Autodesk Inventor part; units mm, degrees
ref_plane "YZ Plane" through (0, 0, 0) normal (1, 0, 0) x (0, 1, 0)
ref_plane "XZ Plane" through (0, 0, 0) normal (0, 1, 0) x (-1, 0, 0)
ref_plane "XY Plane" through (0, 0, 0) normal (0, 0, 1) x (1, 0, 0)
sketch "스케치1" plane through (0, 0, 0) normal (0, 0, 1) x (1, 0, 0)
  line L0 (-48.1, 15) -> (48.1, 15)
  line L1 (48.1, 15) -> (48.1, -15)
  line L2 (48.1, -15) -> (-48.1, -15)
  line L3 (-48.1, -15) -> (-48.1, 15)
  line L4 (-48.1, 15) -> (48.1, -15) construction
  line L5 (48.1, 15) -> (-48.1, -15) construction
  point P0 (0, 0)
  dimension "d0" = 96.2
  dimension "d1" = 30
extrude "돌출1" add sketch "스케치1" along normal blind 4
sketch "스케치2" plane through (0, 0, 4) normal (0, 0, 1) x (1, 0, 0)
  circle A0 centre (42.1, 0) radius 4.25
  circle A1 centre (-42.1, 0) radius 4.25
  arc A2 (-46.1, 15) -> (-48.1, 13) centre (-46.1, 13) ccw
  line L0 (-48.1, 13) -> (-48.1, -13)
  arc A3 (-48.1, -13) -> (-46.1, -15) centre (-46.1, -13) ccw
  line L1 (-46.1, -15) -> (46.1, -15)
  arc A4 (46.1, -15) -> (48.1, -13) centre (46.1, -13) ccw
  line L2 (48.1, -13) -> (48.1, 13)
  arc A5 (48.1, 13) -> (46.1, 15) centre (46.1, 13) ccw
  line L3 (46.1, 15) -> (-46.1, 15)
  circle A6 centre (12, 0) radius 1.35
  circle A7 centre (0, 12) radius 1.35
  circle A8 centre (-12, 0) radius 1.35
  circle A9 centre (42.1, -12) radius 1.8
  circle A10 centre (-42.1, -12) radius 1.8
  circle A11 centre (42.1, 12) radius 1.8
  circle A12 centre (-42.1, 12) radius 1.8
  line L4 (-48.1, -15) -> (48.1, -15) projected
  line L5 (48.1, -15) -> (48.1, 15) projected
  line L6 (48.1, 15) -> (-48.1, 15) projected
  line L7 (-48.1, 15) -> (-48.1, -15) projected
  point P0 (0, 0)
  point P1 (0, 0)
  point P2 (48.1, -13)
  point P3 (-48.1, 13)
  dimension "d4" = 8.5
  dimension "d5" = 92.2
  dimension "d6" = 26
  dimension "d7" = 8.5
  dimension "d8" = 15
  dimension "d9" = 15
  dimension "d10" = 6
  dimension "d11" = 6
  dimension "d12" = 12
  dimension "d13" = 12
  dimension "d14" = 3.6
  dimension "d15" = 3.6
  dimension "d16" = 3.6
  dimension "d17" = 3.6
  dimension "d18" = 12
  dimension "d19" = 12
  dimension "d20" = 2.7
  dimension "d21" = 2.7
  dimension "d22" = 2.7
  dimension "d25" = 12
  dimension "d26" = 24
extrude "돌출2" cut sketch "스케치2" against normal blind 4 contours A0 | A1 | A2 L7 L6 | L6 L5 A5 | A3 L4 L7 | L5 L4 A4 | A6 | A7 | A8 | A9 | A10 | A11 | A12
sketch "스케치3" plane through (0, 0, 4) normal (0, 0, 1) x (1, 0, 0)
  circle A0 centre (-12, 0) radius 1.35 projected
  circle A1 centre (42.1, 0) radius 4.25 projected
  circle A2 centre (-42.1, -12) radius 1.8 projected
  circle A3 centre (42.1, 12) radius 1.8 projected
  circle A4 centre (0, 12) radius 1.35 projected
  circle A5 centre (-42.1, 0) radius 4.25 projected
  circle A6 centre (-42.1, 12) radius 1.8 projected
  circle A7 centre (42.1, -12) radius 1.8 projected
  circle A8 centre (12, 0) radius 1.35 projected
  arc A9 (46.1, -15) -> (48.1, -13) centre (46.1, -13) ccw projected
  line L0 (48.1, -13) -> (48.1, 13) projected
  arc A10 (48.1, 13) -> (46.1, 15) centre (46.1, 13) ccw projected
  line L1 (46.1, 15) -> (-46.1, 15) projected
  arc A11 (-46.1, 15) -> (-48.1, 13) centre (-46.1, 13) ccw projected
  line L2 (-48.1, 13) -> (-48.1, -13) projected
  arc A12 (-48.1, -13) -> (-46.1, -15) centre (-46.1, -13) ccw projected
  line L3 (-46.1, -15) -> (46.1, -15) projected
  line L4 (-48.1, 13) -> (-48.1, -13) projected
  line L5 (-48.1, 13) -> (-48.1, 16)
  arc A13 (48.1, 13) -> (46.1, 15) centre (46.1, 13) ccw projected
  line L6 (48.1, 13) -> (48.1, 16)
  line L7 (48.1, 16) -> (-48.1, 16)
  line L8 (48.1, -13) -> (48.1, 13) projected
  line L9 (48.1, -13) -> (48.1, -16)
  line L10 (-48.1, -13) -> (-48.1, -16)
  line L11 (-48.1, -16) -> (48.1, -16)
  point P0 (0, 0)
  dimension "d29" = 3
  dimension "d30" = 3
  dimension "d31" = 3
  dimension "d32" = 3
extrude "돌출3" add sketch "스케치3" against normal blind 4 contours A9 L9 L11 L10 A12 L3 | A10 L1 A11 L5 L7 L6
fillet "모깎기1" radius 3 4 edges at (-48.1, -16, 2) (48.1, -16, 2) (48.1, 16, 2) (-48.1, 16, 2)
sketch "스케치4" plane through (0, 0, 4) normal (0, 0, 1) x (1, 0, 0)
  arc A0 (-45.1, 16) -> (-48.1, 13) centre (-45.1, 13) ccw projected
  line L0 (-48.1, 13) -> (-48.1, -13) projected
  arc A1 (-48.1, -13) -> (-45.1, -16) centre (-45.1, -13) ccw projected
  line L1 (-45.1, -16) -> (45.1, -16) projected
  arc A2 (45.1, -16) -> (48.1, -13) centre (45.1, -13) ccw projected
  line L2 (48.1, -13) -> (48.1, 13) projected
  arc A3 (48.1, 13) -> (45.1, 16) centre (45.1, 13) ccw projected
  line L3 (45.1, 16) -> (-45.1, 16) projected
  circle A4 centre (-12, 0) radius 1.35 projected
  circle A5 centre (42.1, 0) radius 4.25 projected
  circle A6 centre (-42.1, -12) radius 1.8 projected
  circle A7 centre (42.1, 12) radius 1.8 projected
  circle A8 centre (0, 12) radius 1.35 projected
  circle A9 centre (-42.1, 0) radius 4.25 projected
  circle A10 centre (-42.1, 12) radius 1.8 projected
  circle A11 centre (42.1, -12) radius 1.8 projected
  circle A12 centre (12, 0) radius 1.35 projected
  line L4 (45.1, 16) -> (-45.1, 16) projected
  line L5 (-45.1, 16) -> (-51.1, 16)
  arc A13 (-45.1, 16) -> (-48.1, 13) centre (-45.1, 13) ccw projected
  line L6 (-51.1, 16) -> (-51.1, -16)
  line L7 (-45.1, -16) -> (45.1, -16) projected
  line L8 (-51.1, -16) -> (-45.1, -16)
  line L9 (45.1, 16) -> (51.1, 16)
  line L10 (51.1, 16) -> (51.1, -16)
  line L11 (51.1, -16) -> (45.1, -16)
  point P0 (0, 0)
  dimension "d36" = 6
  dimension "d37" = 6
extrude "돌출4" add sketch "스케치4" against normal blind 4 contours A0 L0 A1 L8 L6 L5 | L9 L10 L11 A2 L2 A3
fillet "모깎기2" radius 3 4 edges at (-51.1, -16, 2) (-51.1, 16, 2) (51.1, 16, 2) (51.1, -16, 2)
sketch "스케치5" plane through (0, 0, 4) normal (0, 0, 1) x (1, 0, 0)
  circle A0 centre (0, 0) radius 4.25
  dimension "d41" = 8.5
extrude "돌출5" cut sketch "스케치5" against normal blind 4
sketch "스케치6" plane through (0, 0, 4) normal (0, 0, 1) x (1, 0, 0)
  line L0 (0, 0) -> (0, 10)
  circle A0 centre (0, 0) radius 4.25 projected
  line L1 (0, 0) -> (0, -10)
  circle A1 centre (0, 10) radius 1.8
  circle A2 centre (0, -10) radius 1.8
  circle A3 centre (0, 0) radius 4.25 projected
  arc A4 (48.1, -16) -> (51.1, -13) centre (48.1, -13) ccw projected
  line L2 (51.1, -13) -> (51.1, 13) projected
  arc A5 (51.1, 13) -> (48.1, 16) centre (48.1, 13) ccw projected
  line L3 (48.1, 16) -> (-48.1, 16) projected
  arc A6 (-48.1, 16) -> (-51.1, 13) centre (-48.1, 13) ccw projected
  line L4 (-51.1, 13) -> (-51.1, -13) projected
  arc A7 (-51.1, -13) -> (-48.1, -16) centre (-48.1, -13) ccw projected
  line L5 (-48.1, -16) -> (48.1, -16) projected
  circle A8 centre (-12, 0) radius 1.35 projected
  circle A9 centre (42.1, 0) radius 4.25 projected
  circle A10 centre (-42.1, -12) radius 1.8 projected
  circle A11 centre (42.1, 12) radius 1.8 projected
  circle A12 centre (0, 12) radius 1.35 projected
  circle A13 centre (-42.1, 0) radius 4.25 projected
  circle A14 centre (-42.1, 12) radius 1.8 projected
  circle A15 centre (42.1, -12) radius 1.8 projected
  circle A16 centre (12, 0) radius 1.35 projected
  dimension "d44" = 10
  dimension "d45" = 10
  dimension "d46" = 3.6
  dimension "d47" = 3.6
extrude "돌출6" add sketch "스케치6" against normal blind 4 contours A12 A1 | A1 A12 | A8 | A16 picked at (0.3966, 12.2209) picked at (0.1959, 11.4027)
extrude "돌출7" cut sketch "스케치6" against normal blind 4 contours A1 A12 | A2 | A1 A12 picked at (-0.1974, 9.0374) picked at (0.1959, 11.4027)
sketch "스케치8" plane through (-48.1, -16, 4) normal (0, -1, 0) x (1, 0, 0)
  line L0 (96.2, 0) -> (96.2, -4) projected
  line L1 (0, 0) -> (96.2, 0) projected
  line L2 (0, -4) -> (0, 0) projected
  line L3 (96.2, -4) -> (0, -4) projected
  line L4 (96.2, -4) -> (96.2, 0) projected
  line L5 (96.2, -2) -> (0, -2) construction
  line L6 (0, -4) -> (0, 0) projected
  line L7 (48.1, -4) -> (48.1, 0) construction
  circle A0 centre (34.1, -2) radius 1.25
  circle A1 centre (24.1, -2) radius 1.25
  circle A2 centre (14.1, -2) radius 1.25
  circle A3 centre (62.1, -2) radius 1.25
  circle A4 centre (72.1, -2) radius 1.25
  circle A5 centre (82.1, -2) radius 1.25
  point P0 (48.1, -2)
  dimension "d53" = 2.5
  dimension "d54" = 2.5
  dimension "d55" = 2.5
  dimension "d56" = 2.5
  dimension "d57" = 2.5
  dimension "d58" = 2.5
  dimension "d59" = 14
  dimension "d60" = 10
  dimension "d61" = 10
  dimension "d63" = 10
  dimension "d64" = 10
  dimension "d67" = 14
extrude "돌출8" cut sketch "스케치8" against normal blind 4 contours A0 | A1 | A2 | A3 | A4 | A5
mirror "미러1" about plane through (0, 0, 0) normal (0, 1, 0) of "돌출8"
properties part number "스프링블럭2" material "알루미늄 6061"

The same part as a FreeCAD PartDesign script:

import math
import FreeCAD as App
import Part
import Sketcher

V = App.Vector
Q = App.Units.Quantity


def edges_at(feature, points):
    """Names of the edges that pass closest to the given points."""
    edges = feature.Shape.Edges
    near = lambda p: min(range(len(edges)), key=lambda i: edges[i].distToShape(Part.Vertex(*p))[0])
    return sorted({f"Edge{near(p) + 1}" for p in points})


def add_polygon(sketch, points):
    """Adds a closed chain of lines whose ends are joined by coincident constraints."""
    first, n = sketch.GeometryCount, len(points)
    for a, b in zip(points, points[1:] + points[:1]):
        sketch.addGeometry(Part.LineSegment(App.Vector(*a, 0), App.Vector(*b, 0)), False)
    for i in range(n):
        sketch.addConstraint(Sketcher.Constraint("Coincident", first + i, 2, first + (i + 1) % n, 1))

doc = App.newDocument("Part")
body = doc.addObject("PartDesign::Body", "Body")

sketch1 = body.newObject("Sketcher::SketchObject", "Sketch")
sketch1.AttachmentSupport = (doc.getObject("XY_Plane"), [""])
sketch1.MapMode = "FlatFace"
add_polygon(sketch1, [(48, 15), (-48, 15), (-48, -15), (48, -15)])
sketch1.addConstraint([
    Sketcher.Constraint("Horizontal", 0),
    Sketcher.Constraint("Vertical", 1),
    Sketcher.Constraint("Horizontal", 2),
    Sketcher.Constraint("Vertical", 3),
    Sketcher.Constraint("Symmetric", 0, 2, 2, 2, -1, 1),
    Sketcher.Constraint("DistanceY", 1, 2, 1, 1, Q("30 mm")),
    Sketcher.Constraint("DistanceX", 0, 2, 0, 1, Q("96.2 mm")),
])
pad1 = body.newObject("PartDesign::Pad", "Pad")
pad1.Profile = sketch1
pad1.Length = 4

sketch2 = body.newObject("Sketcher::SketchObject", "Sketch001")
sketch2.AttachmentSupport = (doc.getObject("XY_Plane"), [""])
sketch2.MapMode = "FlatFace"
sketch2.AttachmentOffset = App.Placement(V(0, 0, 4), App.Rotation())
sketch2.addGeometry([
    Part.Circle(V(42.1, 0, 0), V(0, 0, 1), 4.2),
    Part.Circle(V(-42.1, 0, 0), V(0, 0, 1), 4.2),
    Part.ArcOfCircle(Part.Circle(V(-46.1, 13, 0), V(0, 0, 1), 2), math.radians(90), math.radians(180)),
    Part.LineSegment(V(-46.1, 15, 0), V(-48.1, 15, 0)),
    Part.LineSegment(V(-48.1, 15, 0), V(-48.1, 13, 0)),
    Part.LineSegment(V(48.1, 15, 0), V(46.1, 15, 0)),
    Part.ArcOfCircle(Part.Circle(V(46.1, 13, 0), V(0, 0, 1), 2), math.radians(0), math.radians(90)),
    Part.LineSegment(V(48.1, 13, 0), V(48.1, 15, 0)),
    Part.ArcOfCircle(Part.Circle(V(-46.1, -13, 0), V(0, 0, 1), 2), math.radians(180), math.radians(270)),
    Part.LineSegment(V(-48.1, -13, 0), V(-48.1, -15, 0)),
    Part.LineSegment(V(-48.1, -15, 0), V(-46.1, -15, 0)),
    Part.LineSegment(V(48.1, -15, 0), V(48.1, -13, 0)),
    Part.ArcOfCircle(Part.Circle(V(46.1, -13, 0), V(0, 0, 1), 2), math.radians(-90), math.radians(0)),
    Part.LineSegment(V(46.1, -15, 0), V(48.1, -15, 0)),
    Part.Circle(V(12, 0, 0), V(0, 0, 1), 1.4),
    Part.Circle(V(0, 12, 0), V(0, 0, 1), 1.4),
    Part.Circle(V(-12, 0, 0), V(0, 0, 1), 1.4),
    Part.Circle(V(42.1, -12, 0), V(0, 0, 1), 1.8),
    Part.Circle(V(-42.1, -12, 0), V(0, 0, 1), 1.8),
    Part.Circle(V(42.1, 12, 0), V(0, 0, 1), 1.8),
    Part.Circle(V(-42.1, 12, 0), V(0, 0, 1), 1.8),
], False)
sketch2.addConstraint([
    Sketcher.Constraint("Tangent", 2, 1, 3, 1),
    Sketcher.Constraint("Coincident", 3, 2, 4, 1),
    Sketcher.Constraint("Tangent", 4, 2, 2, 2),
    Sketcher.Constraint("Tangent", 5, 2, 6, 2),
    Sketcher.Constraint("Tangent", 6, 1, 7, 1),
    Sketcher.Constraint("Coincident", 7, 2, 5, 1),
    Sketcher.Constraint("Tangent", 8, 1, 9, 1),
    Sketcher.Constraint("Coincident", 9, 2, 10, 1),
    Sketcher.Constraint("Tangent", 10, 2, 8, 2),
    Sketcher.Constraint("Tangent", 11, 2, 12, 2),
    Sketcher.Constraint("Tangent", 12, 1, 13, 1),
    Sketcher.Constraint("Coincident", 13, 2, 11, 1),
    Sketcher.Constraint("Horizontal", 3),
    Sketcher.Constraint("Vertical", 4),
    Sketcher.Constraint("Horizontal", 5),
    Sketcher.Constraint("Vertical", 7),
    Sketcher.Constraint("Vertical", 9),
    Sketcher.Constraint("Horizontal", 10),
    Sketcher.Constraint("Vertical", 11),
    Sketcher.Constraint("Horizontal", 13),
    Sketcher.Constraint("Equal", 0, 1),
    Sketcher.Constraint("Equal", 2, 6),
    Sketcher.Constraint("Equal", 6, 8),
    Sketcher.Constraint("Equal", 8, 12),
    Sketcher.Constraint("Equal", 14, 15),
    Sketcher.Constraint("Equal", 15, 16),
    Sketcher.Constraint("Equal", 17, 18),
    Sketcher.Constraint("Equal", 18, 19),
    Sketcher.Constraint("Equal", 19, 20),
    Sketcher.Constraint("Symmetric", 0, 3, 1, 3, -1, 1),
    Sketcher.Constraint("Symmetric", 6, 3, 8, 3, -1, 1),
    Sketcher.Constraint("Symmetric", 2, 3, 12, 3, -1, 1),
    Sketcher.Constraint("Symmetric", 14, 3, 16, 3, -1, 1),
    Sketcher.Constraint("Symmetric", 18, 3, 19, 3, -1, 1),
    Sketcher.Constraint("Symmetric", 17, 3, 20, 3, -1, 1),
    Sketcher.Constraint("Symmetric", 2, 3, 6, 3, -2),
    Sketcher.Constraint("Symmetric", 17, 3, 18, 3, -2),
    Sketcher.Constraint("PointOnObject", 0, 3, -1),
    Sketcher.Constraint("PointOnObject", 14, 3, -1),
    Sketcher.Constraint("PointOnObject", 15, 3, -2),
    Sketcher.Constraint("Horizontal", 15, 3, 19, 3),
    Sketcher.Constraint("Vertical", 0, 3, 17, 3),
    Sketcher.Constraint("Diameter", 0, Q("8.5 mm")),
    Sketcher.Constraint("Diameter", 14, Q("2.7 mm")),
    Sketcher.Constraint("Diameter", 17, Q("3.6 mm")),
    Sketcher.Constraint("DistanceX", -1, 1, 14, 3, Q("12 mm")),
    Sketcher.Constraint("DistanceY", -1, 1, 15, 3, Q("12 mm")),
    Sketcher.Constraint("DistanceY", -1, 1, 2, 1, Q("15 mm")),
    Sketcher.Constraint("Radius", 2, Q("2 mm")),
    Sketcher.Constraint("DistanceX", 3, 2, 20, 3, Q("6 mm")),
    Sketcher.Constraint("DistanceX", 2, 3, 6, 3, Q("92.2 mm")),
])
pocket1 = body.newObject("PartDesign::Pocket", "Pocket")
pocket1.Profile = sketch2
pocket1.Length = 4

sketch3 = body.newObject("Sketcher::SketchObject", "Sketch002")
sketch3.AttachmentSupport = (doc.getObject("XY_Plane"), [""])
sketch3.MapMode = "FlatFace"
sketch3.AttachmentOffset = App.Placement(V(0, 0, 4), App.Rotation())
sketch3.addGeometry([
    Part.ArcOfCircle(Part.Circle(V(46.1, -13, 0), V(0, 0, 1), 2), math.radians(-90), math.radians(0)),
    Part.LineSegment(V(46.1, -15, 0), V(-46.1, -15, 0)),
    Part.ArcOfCircle(Part.Circle(V(-46.1, -13, 0), V(0, 0, 1), 2), math.radians(180), math.radians(270)),
    Part.LineSegment(V(-48.1, -13, 0), V(-48.1, -16, 0)),
    Part.LineSegment(V(-48.1, -16, 0), V(48.1, -16, 0)),
    Part.LineSegment(V(48.1, -16, 0), V(48.1, -13, 0)),
    Part.ArcOfCircle(Part.Circle(V(46.1, 13, 0), V(0, 0, 1), 2), math.radians(0), math.radians(90)),
    Part.LineSegment(V(48.1, 13, 0), V(48.1, 16, 0)),
    Part.LineSegment(V(48.1, 16, 0), V(-48.1, 16, 0)),
    Part.LineSegment(V(-48.1, 16, 0), V(-48.1, 13, 0)),
    Part.ArcOfCircle(Part.Circle(V(-46.1, 13, 0), V(0, 0, 1), 2), math.radians(90), math.radians(180)),
    Part.LineSegment(V(-46.1, 15, 0), V(46.1, 15, 0)),
], False)
sketch3.addConstraint([
    Sketcher.Constraint("Tangent", 0, 1, 1, 1),
    Sketcher.Constraint("Tangent", 1, 2, 2, 2),
    Sketcher.Constraint("Tangent", 2, 1, 3, 1),
    Sketcher.Constraint("Coincident", 3, 2, 4, 1),
    Sketcher.Constraint("Coincident", 4, 2, 5, 1),
    Sketcher.Constraint("Tangent", 5, 2, 0, 2),
    Sketcher.Constraint("Tangent", 6, 1, 7, 1),
    Sketcher.Constraint("Coincident", 7, 2, 8, 1),
    Sketcher.Constraint("Coincident", 8, 2, 9, 1),
    Sketcher.Constraint("Tangent", 9, 2, 10, 2),
    Sketcher.Constraint("Tangent", 10, 1, 11, 1),
    Sketcher.Constraint("Tangent", 11, 2, 6, 2),
    Sketcher.Constraint("Horizontal", 1),
    Sketcher.Constraint("Vertical", 3),
    Sketcher.Constraint("Horizontal", 4),
    Sketcher.Constraint("Vertical", 5),
    Sketcher.Constraint("Vertical", 7),
    Sketcher.Constraint("Horizontal", 8),
    Sketcher.Constraint("Vertical", 9),
    Sketcher.Constraint("Horizontal", 11),
    Sketcher.Constraint("Equal", 0, 2),
    Sketcher.Constraint("Equal", 2, 6),
    Sketcher.Constraint("Equal", 6, 10),
    Sketcher.Constraint("Symmetric", 2, 3, 6, 3, -1, 1),
    Sketcher.Constraint("Symmetric", 4, 2, 8, 2, -1, 1),
    Sketcher.Constraint("Vertical", 0, 3, 6, 3),
    Sketcher.Constraint("DistanceY", 3, 2, 3, 1, Q("3 mm")),
    Sketcher.Constraint("Radius", 0, Q("2 mm")),
    Sketcher.Constraint("DistanceX", 1, 2, 1, 1, Q("92.2 mm")),
    Sketcher.Constraint("DistanceY", 0, 3, -1, 1, Q("13 mm")),
])
pad2 = body.newObject("PartDesign::Pad", "Pad001")
pad2.Profile = sketch3
pad2.Length = 4
pad2.Reversed = True
doc.recompute()

fillet = body.newObject("PartDesign::Fillet", "Fillet")
fillet.Base = (pad2, edges_at(pad2, [
    (-48.1, -16, 2),
    (48.1, -16, 2),
    (48.1, 16, 2),
    (-48.1, 16, 2),
]))
fillet.Radius = 3

sketch4 = body.newObject("Sketcher::SketchObject", "Sketch003")
sketch4.AttachmentSupport = (doc.getObject("XY_Plane"), [""])
sketch4.MapMode = "FlatFace"
sketch4.AttachmentOffset = App.Placement(V(0, 0, 4), App.Rotation())
sketch4.addGeometry([
    Part.ArcOfCircle(Part.Circle(V(-45.1, 13, 0), V(0, 0, 1), 3), math.radians(90), math.radians(180)),
    Part.LineSegment(V(-45.1, 16, 0), V(-51.1, 16, 0)),
    Part.LineSegment(V(-51.1, 16, 0), V(-51.1, -16, 0)),
    Part.LineSegment(V(-51.1, -16, 0), V(-45.1, -16, 0)),
    Part.ArcOfCircle(Part.Circle(V(-45.1, -13, 0), V(0, 0, 1), 3), math.radians(180), math.radians(270)),
    Part.LineSegment(V(-48.1, -13, 0), V(-48.1, 13, 0)),
    Part.LineSegment(V(51.1, 16, 0), V(45.1, 16, 0)),
    Part.ArcOfCircle(Part.Circle(V(45.1, 13, 0), V(0, 0, 1), 3), math.radians(0), math.radians(90)),
    Part.LineSegment(V(48.1, 13, 0), V(48.1, -13, 0)),
    Part.ArcOfCircle(Part.Circle(V(45.1, -13, 0), V(0, 0, 1), 3), math.radians(-90), math.radians(0)),
    Part.LineSegment(V(45.1, -16, 0), V(51.1, -16, 0)),
    Part.LineSegment(V(51.1, -16, 0), V(51.1, 16, 0)),
], False)
sketch4.addConstraint([
    Sketcher.Constraint("Tangent", 0, 1, 1, 1),
    Sketcher.Constraint("Coincident", 1, 2, 2, 1),
    Sketcher.Constraint("Coincident", 2, 2, 3, 1),
    Sketcher.Constraint("Tangent", 3, 2, 4, 2),
    Sketcher.Constraint("Tangent", 4, 1, 5, 1),
    Sketcher.Constraint("Tangent", 5, 2, 0, 2),
    Sketcher.Constraint("Tangent", 6, 2, 7, 2),
    Sketcher.Constraint("Tangent", 7, 1, 8, 1),
    Sketcher.Constraint("Tangent", 8, 2, 9, 2),
    Sketcher.Constraint("Tangent", 9, 1, 10, 1),
    Sketcher.Constraint("Coincident", 10, 2, 11, 1),
    Sketcher.Constraint("Coincident", 11, 2, 6, 1),
    Sketcher.Constraint("Horizontal", 1),
    Sketcher.Constraint("Vertical", 2),
    Sketcher.Constraint("Horizontal", 3),
    Sketcher.Constraint("Vertical", 5),
    Sketcher.Constraint("Horizontal", 6),
    Sketcher.Constraint("Vertical", 8),
    Sketcher.Constraint("Horizontal", 10),
    Sketcher.Constraint("Vertical", 11),
    Sketcher.Constraint("Equal", 0, 4),
    Sketcher.Constraint("Equal", 4, 7),
    Sketcher.Constraint("Equal", 7, 9),
    Sketcher.Constraint("Symmetric", 4, 3, 7, 3, -1, 1),
    Sketcher.Constraint("Symmetric", 1, 2, 10, 2, -1, 1),
    Sketcher.Constraint("Horizontal", 0, 3, 7, 3),
    Sketcher.Constraint("Radius", 0, Q("3 mm")),
    Sketcher.Constraint("DistanceX", 1, 2, 1, 1, Q("6 mm")),
    Sketcher.Constraint("DistanceY", 2, 2, 2, 1, Q("32 mm")),
    Sketcher.Constraint("DistanceX", 0, 3, -1, 1, Q("45.1 mm")),
])
pad3 = body.newObject("PartDesign::Pad", "Pad002")
pad3.Profile = sketch4
pad3.Length = 4
pad3.Reversed = True
doc.recompute()

fillet2 = body.newObject("PartDesign::Fillet", "Fillet001")
fillet2.Base = (pad3, edges_at(pad3, [
    (-51.1, -16, 2),
    (-51.1, 16, 2),
    (51.1, 16, 2),
    (51.1, -16, 2),
]))
fillet2.Radius = 3

sketch5 = body.newObject("Sketcher::SketchObject", "Sketch004")
sketch5.AttachmentSupport = (doc.getObject("XY_Plane"), [""])
sketch5.MapMode = "FlatFace"
sketch5.AttachmentOffset = App.Placement(V(0, 0, 4), App.Rotation())
sketch5.addGeometry(Part.Circle(V(0, 0, 0), V(0, 0, 1), 4.2), False)
sketch5.addConstraint([
    Sketcher.Constraint("Coincident", 0, 3, -1, 1),
    Sketcher.Constraint("Diameter", 0, Q("8.5 mm")),
])
pocket2 = body.newObject("PartDesign::Pocket", "Pocket001")
pocket2.Profile = sketch5
pocket2.Length = 4

sketch6 = body.newObject("Sketcher::SketchObject", "Sketch005")
sketch6.AttachmentSupport = (doc.getObject("XY_Plane"), [""])
sketch6.MapMode = "FlatFace"
sketch6.AttachmentOffset = App.Placement(V(0, 0, 4), App.Rotation())
sketch6.addGeometry([
    Part.Circle(V(0, 12, 0), V(0, 0, 1), 1.4),
    Part.Circle(V(-12, 0, 0), V(0, 0, 1), 1.4),
    Part.Circle(V(12, 0, 0), V(0, 0, 1), 1.4),
], False)
sketch6.addConstraint([
    Sketcher.Constraint("Equal", 0, 1),
    Sketcher.Constraint("Equal", 1, 2),
    Sketcher.Constraint("Symmetric", 1, 3, 2, 3, -1, 1),
    Sketcher.Constraint("PointOnObject", 0, 3, -2),
    Sketcher.Constraint("PointOnObject", 1, 3, -1),
    Sketcher.Constraint("Diameter", 0, Q("2.7 mm")),
    Sketcher.Constraint("DistanceY", -1, 1, 0, 3, Q("12 mm")),
    Sketcher.Constraint("DistanceX", 1, 3, -1, 1, Q("12 mm")),
])
pad4 = body.newObject("PartDesign::Pad", "Pad003")
pad4.Profile = sketch6
pad4.Length = 4
pad4.Reversed = True

sketch7 = body.newObject("Sketcher::SketchObject", "Sketch006")
sketch7.AttachmentSupport = (doc.getObject("XY_Plane"), [""])
sketch7.MapMode = "FlatFace"
sketch7.AttachmentOffset = App.Placement(V(0, 0, 4), App.Rotation())
sketch7.addGeometry([
    Part.Circle(V(0, 10, 0), V(0, 0, 1), 1.8),
    Part.Circle(V(0, -10, 0), V(0, 0, 1), 1.8),
], False)
sketch7.addConstraint([
    Sketcher.Constraint("Equal", 0, 1),
    Sketcher.Constraint("Symmetric", 0, 3, 1, 3, -1, 1),
    Sketcher.Constraint("PointOnObject", 0, 3, -2),
    Sketcher.Constraint("Diameter", 0, Q("3.6 mm")),
    Sketcher.Constraint("DistanceY", -1, 1, 0, 3, Q("10 mm")),
])
pocket3 = body.newObject("PartDesign::Pocket", "Pocket002")
pocket3.Profile = sketch7
pocket3.Length = 4

sketch8 = body.newObject("Sketcher::SketchObject", "Sketch007")
sketch8.AttachmentSupport = (doc.getObject("XZ_Plane"), [""])
sketch8.MapMode = "FlatFace"
sketch8.AttachmentOffset = App.Placement(V(0, 0, 16), App.Rotation())
sketch8.addGeometry([
    Part.Circle(V(-14, 2, 0), V(0, 0, 1), 1.2),
    Part.Circle(V(-24, 2, 0), V(0, 0, 1), 1.2),
    Part.Circle(V(-34, 2, 0), V(0, 0, 1), 1.2),
    Part.Circle(V(14, 2, 0), V(0, 0, 1), 1.2),
    Part.Circle(V(24, 2, 0), V(0, 0, 1), 1.2),
    Part.Circle(V(34, 2, 0), V(0, 0, 1), 1.2),
], False)
sketch8.addConstraint([
    Sketcher.Constraint("Equal", 0, 1),
    Sketcher.Constraint("Equal", 1, 2),
    Sketcher.Constraint("Equal", 2, 3),
    Sketcher.Constraint("Equal", 3, 4),
    Sketcher.Constraint("Equal", 4, 5),
    Sketcher.Constraint("Symmetric", 0, 3, 3, 3, -2),
    Sketcher.Constraint("Symmetric", 1, 3, 4, 3, -2),
    Sketcher.Constraint("Symmetric", 2, 3, 5, 3, -2),
    Sketcher.Constraint("Horizontal", 0, 3, 1, 3),
    Sketcher.Constraint("Horizontal", 1, 3, 2, 3),
    Sketcher.Constraint("Diameter", 0, Q("2.5 mm")),
    Sketcher.Constraint("DistanceX", 0, 3, -1, 1, Q("14 mm")),
    Sketcher.Constraint("DistanceX", 1, 3, 0, 3, Q("10 mm")),
    Sketcher.Constraint("DistanceX", 2, 3, 1, 3, Q("10 mm")),
    Sketcher.Constraint("DistanceY", -1, 1, 0, 3, Q("2 mm")),
])
pocket4 = body.newObject("PartDesign::Pocket", "Pocket003")
pocket4.Profile = sketch8
pocket4.Length = 4
doc.recompute()

mirrored = body.newObject("PartDesign::Mirrored", "Mirrored")
mirrored.Originals = [pocket4]
mirrored.MirrorPlane = (doc.getObject("XZ_Plane"), [""])
body.Tip = mirrored

doc.recompute()
